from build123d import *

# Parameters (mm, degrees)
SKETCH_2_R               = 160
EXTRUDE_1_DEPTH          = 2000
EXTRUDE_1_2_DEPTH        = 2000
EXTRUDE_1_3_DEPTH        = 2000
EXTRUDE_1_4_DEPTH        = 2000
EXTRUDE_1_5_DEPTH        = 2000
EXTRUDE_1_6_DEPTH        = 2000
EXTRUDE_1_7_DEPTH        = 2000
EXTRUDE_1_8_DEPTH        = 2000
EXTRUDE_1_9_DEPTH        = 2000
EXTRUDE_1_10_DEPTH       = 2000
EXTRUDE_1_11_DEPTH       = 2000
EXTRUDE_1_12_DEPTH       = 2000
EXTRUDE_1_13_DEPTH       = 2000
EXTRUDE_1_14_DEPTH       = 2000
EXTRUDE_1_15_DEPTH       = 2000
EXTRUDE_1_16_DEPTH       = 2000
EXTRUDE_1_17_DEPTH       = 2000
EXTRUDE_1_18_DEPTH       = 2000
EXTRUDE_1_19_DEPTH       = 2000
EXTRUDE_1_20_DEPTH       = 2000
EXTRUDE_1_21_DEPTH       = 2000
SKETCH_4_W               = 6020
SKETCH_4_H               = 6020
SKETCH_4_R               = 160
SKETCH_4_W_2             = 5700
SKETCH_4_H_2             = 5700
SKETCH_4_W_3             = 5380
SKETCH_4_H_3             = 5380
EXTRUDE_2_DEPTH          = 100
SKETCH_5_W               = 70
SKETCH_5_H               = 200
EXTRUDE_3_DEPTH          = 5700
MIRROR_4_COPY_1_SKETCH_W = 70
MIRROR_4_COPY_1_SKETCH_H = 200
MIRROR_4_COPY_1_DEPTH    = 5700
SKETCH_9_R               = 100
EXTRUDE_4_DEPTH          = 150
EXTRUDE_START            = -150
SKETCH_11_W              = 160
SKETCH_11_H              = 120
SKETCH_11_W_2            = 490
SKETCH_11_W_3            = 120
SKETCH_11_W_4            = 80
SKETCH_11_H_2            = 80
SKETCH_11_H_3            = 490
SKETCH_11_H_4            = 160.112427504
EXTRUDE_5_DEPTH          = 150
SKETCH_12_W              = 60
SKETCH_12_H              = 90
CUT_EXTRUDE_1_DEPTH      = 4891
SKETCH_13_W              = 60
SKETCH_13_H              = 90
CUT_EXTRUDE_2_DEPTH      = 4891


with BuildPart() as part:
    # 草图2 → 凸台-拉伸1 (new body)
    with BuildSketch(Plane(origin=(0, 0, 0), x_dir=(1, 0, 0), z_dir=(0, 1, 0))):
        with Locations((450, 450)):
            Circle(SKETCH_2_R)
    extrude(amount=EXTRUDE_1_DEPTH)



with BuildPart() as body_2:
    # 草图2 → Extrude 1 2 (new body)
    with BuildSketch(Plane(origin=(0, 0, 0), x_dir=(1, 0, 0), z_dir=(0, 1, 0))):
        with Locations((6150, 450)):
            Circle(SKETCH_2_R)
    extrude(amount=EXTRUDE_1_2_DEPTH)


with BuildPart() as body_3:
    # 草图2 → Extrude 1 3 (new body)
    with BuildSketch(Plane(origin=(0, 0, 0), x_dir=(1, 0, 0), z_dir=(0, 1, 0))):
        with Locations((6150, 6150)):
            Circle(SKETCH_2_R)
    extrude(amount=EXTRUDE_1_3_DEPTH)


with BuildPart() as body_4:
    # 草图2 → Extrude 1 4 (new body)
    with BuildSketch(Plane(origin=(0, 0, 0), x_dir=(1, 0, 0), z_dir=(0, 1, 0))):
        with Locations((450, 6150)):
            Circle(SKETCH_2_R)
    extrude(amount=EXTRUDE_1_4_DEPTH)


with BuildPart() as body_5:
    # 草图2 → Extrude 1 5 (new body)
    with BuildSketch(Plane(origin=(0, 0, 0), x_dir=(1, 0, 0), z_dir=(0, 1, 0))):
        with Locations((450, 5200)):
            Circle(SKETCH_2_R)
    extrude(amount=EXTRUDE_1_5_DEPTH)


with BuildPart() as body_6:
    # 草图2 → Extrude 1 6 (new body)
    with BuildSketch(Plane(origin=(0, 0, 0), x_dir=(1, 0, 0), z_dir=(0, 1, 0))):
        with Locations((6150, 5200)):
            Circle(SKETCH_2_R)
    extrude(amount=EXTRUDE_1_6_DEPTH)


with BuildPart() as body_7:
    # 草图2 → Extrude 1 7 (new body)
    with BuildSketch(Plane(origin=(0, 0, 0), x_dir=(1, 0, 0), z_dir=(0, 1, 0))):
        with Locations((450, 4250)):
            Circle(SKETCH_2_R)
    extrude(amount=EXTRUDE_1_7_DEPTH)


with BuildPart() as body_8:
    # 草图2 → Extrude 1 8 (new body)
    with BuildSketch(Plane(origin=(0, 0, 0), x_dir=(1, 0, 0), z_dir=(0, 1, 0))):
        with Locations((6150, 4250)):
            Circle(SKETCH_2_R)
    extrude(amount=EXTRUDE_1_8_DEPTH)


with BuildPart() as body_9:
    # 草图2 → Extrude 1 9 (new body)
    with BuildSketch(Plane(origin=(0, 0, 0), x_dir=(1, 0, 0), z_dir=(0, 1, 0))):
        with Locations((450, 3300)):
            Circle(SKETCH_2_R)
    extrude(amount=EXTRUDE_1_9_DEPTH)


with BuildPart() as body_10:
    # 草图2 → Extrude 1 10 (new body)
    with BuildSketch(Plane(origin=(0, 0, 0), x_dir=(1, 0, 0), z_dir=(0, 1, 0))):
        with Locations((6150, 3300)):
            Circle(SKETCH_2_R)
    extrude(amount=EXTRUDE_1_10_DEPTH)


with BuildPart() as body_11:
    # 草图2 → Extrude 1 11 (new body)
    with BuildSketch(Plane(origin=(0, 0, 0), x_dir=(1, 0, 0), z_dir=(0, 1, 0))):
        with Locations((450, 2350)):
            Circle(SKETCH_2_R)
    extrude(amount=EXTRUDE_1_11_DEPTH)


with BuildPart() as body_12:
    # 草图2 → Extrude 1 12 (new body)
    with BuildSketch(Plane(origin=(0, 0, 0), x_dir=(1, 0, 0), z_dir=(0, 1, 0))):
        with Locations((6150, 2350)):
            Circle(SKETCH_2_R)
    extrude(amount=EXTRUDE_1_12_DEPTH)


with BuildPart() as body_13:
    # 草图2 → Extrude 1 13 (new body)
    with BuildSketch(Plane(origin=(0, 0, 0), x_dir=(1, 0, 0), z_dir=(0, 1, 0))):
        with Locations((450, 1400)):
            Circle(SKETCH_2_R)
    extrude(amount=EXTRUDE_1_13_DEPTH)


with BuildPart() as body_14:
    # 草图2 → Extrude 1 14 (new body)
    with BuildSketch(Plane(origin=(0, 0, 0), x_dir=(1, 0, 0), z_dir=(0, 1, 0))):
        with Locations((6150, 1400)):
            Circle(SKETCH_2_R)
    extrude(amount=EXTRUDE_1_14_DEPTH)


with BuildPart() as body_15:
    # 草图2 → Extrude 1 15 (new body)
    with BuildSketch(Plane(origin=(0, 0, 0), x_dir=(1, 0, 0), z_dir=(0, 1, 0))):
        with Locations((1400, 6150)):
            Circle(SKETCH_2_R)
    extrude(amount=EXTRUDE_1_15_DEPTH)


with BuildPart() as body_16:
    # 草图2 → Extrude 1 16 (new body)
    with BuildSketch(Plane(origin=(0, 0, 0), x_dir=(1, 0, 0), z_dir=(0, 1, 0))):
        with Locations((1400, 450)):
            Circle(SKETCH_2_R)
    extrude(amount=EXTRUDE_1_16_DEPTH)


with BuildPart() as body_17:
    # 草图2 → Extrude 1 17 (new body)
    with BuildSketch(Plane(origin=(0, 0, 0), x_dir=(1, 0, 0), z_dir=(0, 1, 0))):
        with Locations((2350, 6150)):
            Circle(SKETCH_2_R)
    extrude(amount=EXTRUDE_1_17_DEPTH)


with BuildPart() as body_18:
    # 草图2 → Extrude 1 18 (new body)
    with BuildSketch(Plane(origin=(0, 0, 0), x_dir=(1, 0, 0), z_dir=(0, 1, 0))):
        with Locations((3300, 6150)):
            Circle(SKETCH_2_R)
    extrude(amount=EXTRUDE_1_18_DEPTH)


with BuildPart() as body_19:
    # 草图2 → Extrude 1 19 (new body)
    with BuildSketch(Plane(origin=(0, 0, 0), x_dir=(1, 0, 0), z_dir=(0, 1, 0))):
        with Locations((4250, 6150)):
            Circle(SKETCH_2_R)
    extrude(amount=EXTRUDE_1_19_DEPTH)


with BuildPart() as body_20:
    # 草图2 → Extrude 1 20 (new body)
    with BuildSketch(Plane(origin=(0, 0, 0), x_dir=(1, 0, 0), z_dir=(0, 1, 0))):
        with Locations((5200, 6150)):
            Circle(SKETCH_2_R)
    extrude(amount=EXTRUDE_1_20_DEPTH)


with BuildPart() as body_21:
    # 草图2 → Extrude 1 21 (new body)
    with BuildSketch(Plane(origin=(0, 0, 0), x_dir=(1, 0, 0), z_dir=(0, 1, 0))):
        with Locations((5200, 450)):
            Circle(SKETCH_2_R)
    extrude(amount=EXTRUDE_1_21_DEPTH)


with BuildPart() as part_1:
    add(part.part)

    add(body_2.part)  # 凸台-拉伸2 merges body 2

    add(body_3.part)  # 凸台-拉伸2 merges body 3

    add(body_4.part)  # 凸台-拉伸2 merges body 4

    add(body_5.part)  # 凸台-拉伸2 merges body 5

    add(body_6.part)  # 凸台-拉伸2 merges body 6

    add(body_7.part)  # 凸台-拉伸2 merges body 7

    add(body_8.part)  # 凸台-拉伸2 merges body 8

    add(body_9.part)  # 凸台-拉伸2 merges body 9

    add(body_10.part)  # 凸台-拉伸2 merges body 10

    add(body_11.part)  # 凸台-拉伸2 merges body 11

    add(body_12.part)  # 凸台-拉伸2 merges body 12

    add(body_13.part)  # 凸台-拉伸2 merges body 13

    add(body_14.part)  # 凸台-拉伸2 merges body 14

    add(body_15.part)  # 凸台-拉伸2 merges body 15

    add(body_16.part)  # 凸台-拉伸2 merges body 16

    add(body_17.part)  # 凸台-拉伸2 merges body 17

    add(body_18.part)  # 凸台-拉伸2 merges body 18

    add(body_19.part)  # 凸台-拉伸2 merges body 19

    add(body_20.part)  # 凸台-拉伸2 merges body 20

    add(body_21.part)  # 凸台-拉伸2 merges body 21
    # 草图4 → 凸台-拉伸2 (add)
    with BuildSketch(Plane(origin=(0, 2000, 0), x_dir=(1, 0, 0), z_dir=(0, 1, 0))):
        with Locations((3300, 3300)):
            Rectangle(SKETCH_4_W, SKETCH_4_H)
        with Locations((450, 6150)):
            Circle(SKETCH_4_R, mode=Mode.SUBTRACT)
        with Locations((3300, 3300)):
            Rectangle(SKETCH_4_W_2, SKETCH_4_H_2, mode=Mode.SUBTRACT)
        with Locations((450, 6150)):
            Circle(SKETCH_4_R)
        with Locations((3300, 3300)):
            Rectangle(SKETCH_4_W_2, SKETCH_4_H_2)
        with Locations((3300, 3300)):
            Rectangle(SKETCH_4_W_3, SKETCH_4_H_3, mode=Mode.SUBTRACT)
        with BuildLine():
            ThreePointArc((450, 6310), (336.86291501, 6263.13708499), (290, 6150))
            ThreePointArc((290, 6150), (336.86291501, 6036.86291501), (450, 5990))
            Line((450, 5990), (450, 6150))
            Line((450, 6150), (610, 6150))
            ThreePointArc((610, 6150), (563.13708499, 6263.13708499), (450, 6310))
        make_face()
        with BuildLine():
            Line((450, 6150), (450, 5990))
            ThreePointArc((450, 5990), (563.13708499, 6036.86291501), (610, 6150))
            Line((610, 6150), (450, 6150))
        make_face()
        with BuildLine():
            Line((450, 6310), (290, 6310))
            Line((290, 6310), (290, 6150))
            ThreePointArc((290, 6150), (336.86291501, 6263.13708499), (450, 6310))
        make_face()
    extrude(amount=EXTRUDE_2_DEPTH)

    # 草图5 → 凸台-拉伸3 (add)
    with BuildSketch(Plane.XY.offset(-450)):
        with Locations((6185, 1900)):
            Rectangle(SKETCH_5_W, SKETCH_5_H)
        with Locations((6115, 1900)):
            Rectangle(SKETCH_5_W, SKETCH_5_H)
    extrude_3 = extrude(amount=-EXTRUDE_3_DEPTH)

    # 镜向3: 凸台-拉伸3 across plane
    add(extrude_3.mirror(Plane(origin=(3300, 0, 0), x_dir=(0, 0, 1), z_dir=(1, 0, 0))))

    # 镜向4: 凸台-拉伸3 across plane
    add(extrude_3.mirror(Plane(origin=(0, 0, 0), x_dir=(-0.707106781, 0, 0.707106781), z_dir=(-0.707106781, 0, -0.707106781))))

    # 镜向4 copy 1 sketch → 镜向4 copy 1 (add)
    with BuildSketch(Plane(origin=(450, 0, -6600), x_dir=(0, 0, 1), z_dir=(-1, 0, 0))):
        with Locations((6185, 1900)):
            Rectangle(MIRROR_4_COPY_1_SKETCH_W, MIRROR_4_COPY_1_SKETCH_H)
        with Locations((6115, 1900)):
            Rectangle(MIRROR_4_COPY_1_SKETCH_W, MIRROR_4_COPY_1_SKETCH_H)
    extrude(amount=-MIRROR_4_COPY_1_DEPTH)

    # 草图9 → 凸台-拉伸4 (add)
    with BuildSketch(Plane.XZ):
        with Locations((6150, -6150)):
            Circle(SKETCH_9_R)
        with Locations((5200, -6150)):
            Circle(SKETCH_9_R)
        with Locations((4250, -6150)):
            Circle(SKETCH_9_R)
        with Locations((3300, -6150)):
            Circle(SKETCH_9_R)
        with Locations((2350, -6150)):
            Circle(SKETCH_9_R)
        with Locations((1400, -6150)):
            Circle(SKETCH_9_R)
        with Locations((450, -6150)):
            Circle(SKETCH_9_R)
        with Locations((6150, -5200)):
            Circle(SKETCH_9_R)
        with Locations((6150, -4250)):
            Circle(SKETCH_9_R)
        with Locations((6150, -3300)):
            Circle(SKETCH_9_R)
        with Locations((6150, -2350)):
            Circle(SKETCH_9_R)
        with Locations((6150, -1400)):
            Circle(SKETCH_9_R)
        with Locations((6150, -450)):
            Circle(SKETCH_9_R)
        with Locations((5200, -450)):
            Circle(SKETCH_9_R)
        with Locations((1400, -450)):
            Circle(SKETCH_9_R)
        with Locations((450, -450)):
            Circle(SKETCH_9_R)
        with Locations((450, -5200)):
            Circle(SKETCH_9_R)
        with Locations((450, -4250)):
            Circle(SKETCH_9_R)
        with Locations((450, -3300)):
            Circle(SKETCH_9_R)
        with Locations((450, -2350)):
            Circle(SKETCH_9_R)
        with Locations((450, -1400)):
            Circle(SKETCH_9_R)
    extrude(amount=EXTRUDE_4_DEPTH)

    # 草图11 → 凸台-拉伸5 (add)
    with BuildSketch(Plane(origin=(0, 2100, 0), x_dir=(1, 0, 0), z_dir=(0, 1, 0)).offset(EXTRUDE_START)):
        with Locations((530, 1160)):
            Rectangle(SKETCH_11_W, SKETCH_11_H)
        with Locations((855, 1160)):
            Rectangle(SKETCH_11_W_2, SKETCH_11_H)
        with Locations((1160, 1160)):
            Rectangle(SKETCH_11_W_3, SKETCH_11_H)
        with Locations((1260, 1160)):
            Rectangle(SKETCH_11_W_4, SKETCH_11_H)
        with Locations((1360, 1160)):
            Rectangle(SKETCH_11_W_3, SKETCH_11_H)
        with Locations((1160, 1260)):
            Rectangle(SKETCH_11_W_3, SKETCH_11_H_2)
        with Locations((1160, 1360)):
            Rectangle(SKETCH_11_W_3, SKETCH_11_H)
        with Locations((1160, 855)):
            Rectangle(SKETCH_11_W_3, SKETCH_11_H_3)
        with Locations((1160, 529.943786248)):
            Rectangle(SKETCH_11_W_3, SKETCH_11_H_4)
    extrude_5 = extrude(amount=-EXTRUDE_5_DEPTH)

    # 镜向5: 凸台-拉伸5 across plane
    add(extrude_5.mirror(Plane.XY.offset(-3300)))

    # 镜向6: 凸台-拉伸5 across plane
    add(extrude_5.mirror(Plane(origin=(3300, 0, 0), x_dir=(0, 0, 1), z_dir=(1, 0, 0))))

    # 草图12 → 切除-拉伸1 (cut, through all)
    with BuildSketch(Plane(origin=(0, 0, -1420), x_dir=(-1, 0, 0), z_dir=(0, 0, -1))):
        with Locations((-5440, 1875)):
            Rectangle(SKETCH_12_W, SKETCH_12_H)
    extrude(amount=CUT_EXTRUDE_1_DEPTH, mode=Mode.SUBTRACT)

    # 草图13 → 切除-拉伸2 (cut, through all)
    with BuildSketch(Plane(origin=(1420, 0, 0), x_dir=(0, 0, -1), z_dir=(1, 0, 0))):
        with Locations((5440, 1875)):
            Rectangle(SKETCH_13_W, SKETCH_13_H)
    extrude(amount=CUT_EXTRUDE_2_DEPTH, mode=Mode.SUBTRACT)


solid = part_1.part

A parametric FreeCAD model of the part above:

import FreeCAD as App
import Part
import Sketcher
from FreeCAD import Vector
Q = App.Units.Quantity


def add_polygon(sketch, points):
    """Adds a closed chain of lines whose ends are joined by coincident constraints."""
    first, n = sketch.GeometryCount, len(points)
    for a, b in zip(points, points[1:] + points[:1]):
        sketch.addGeometry(Part.LineSegment(App.Vector(*a, 0), App.Vector(*b, 0)), False)
    for i in range(n):
        sketch.addConstraint(Sketcher.Constraint("Coincident", first + i, 2, first + (i + 1) % n, 1))

doc = App.newDocument("Part")
body = doc.addObject("PartDesign::Body", "Body")

# Sketch on XZ plane
sketch1 = body.newObject("Sketcher::SketchObject", "Sketch")
sketch1.AttachmentSupport = (doc.getObject("XZ_Plane"), [""])
sketch1.MapMode = "FlatFace"
sketch1.addGeometry(Part.Circle(Vector(450, -450, 0), Vector(0, 0, 1), 160), False)
sketch1.addConstraint(Sketcher.Constraint("Diameter", 0, Q("320 mm")))
sketch1.addConstraint(Sketcher.Constraint("DistanceX", -1, 1, 0, 3, Q("450 mm")))
sketch1.addConstraint(Sketcher.Constraint("DistanceY", 0, 3, -1, 1, Q("450 mm")))
pad1 = body.newObject("PartDesign::Pad", "Pad")
pad1.Profile = sketch1
pad1.Length = 2000
pad1.Reversed = True
body2 = doc.addObject("PartDesign::Body", "Body001")

# Sketch on XZ plane
sketch2 = body2.newObject("Sketcher::SketchObject", "Sketch001")
sketch2.AttachmentSupport = (doc.getObject("XZ_Plane001"), [""])
sketch2.MapMode = "FlatFace"
sketch2.addGeometry(Part.Circle(Vector(6150, -450, 0), Vector(0, 0, 1), 160), False)
sketch2.addConstraint(Sketcher.Constraint("Diameter", 0, Q("320 mm")))
sketch2.addConstraint(Sketcher.Constraint("DistanceX", -1, 1, 0, 3, Q("6150 mm")))
sketch2.addConstraint(Sketcher.Constraint("DistanceY", 0, 3, -1, 1, Q("450 mm")))
pad2 = body2.newObject("PartDesign::Pad", "Pad001")
pad2.Profile = sketch2
pad2.Length = 2000
pad2.Reversed = True
body3 = doc.addObject("PartDesign::Body", "Body002")

# Sketch on XZ plane
sketch3 = body3.newObject("Sketcher::SketchObject", "Sketch002")
sketch3.AttachmentSupport = (doc.getObject("XZ_Plane002"), [""])
sketch3.MapMode = "FlatFace"
sketch3.addGeometry(Part.Circle(Vector(6150, -6150, 0), Vector(0, 0, 1), 160), False)
sketch3.addConstraint(Sketcher.Constraint("Diameter", 0, Q("320 mm")))
sketch3.addConstraint(Sketcher.Constraint("DistanceX", -1, 1, 0, 3, Q("6150 mm")))
sketch3.addConstraint(Sketcher.Constraint("DistanceY", 0, 3, -1, 1, Q("6150 mm")))
pad3 = body3.newObject("PartDesign::Pad", "Pad002")
pad3.Profile = sketch3
pad3.Length = 2000
pad3.Reversed = True
body4 = doc.addObject("PartDesign::Body", "Body003")

# Sketch on XZ plane
sketch4 = body4.newObject("Sketcher::SketchObject", "Sketch003")
sketch4.AttachmentSupport = (doc.getObject("XZ_Plane003"), [""])
sketch4.MapMode = "FlatFace"
sketch4.addGeometry(Part.Circle(Vector(450, -6150, 0), Vector(0, 0, 1), 160), False)
sketch4.addConstraint(Sketcher.Constraint("Diameter", 0, Q("320 mm")))
sketch4.addConstraint(Sketcher.Constraint("DistanceX", -1, 1, 0, 3, Q("450 mm")))
sketch4.addConstraint(Sketcher.Constraint("DistanceY", 0, 3, -1, 1, Q("6150 mm")))
pad4 = body4.newObject("PartDesign::Pad", "Pad003")
pad4.Profile = sketch4
pad4.Length = 2000
pad4.Reversed = True
body5 = doc.addObject("PartDesign::Body", "Body004")

# Sketch on XZ plane
sketch5 = body5.newObject("Sketcher::SketchObject", "Sketch004")
sketch5.AttachmentSupport = (doc.getObject("XZ_Plane004"), [""])
sketch5.MapMode = "FlatFace"
sketch5.addGeometry(Part.Circle(Vector(450, -5200, 0), Vector(0, 0, 1), 160), False)
sketch5.addConstraint(Sketcher.Constraint("Diameter", 0, Q("320 mm")))
sketch5.addConstraint(Sketcher.Constraint("DistanceX", -1, 1, 0, 3, Q("450 mm")))
sketch5.addConstraint(Sketcher.Constraint("DistanceY", 0, 3, -1, 1, Q("5200 mm")))
pad5 = body5.newObject("PartDesign::Pad", "Pad004")
pad5.Profile = sketch5
pad5.Length = 2000
pad5.Reversed = True
body6 = doc.addObject("PartDesign::Body", "Body005")

# Sketch on XZ plane
sketch6 = body6.newObject("Sketcher::SketchObject", "Sketch005")
sketch6.AttachmentSupport = (doc.getObject("XZ_Plane005"), [""])
sketch6.MapMode = "FlatFace"
sketch6.addGeometry(Part.Circle(Vector(6150, -5200, 0), Vector(0, 0, 1), 160), False)
sketch6.addConstraint(Sketcher.Constraint("Diameter", 0, Q("320 mm")))
sketch6.addConstraint(Sketcher.Constraint("DistanceX", -1, 1, 0, 3, Q("6150 mm")))
sketch6.addConstraint(Sketcher.Constraint("DistanceY", 0, 3, -1, 1, Q("5200 mm")))
pad6 = body6.newObject("PartDesign::Pad", "Pad005")
pad6.Profile = sketch6
pad6.Length = 2000
pad6.Reversed = True
body7 = doc.addObject("PartDesign::Body", "Body006")

# Sketch on XZ plane
sketch7 = body7.newObject("Sketcher::SketchObject", "Sketch006")
sketch7.AttachmentSupport = (doc.getObject("XZ_Plane006"), [""])
sketch7.MapMode = "FlatFace"
sketch7.addGeometry(Part.Circle(Vector(450, -4250, 0), Vector(0, 0, 1), 160), False)
sketch7.addConstraint(Sketcher.Constraint("Diameter", 0, Q("320 mm")))
sketch7.addConstraint(Sketcher.Constraint("DistanceX", -1, 1, 0, 3, Q("450 mm")))
sketch7.addConstraint(Sketcher.Constraint("DistanceY", 0, 3, -1, 1, Q("4250 mm")))
pad7 = body7.newObject("PartDesign::Pad", "Pad006")
pad7.Profile = sketch7
pad7.Length = 2000
pad7.Reversed = True
body8 = doc.addObject("PartDesign::Body", "Body007")

# Sketch on XZ plane
sketch8 = body8.newObject("Sketcher::SketchObject", "Sketch007")
sketch8.AttachmentSupport = (doc.getObject("XZ_Plane007"), [""])
sketch8.MapMode = "FlatFace"
sketch8.addGeometry(Part.Circle(Vector(6150, -4250, 0), Vector(0, 0, 1), 160), False)
sketch8.addConstraint(Sketcher.Constraint("Diameter", 0, Q("320 mm")))
sketch8.addConstraint(Sketcher.Constraint("DistanceX", -1, 1, 0, 3, Q("6150 mm")))
sketch8.addConstraint(Sketcher.Constraint("DistanceY", 0, 3, -1, 1, Q("4250 mm")))
pad8 = body8.newObject("PartDesign::Pad", "Pad007")
pad8.Profile = sketch8
pad8.Length = 2000
pad8.Reversed = True
body9 = doc.addObject("PartDesign::Body", "Body008")

# Sketch on XZ plane
sketch9 = body9.newObject("Sketcher::SketchObject", "Sketch008")
sketch9.AttachmentSupport = (doc.getObject("XZ_Plane008"), [""])
sketch9.MapMode = "FlatFace"
sketch9.addGeometry(Part.Circle(Vector(450, -3300, 0), Vector(0, 0, 1), 160), False)
sketch9.addConstraint(Sketcher.Constraint("Diameter", 0, Q("320 mm")))
sketch9.addConstraint(Sketcher.Constraint("DistanceX", -1, 1, 0, 3, Q("450 mm")))
sketch9.addConstraint(Sketcher.Constraint("DistanceY", 0, 3, -1, 1, Q("3300 mm")))
pad9 = body9.newObject("PartDesign::Pad", "Pad008")
pad9.Profile = sketch9
pad9.Length = 2000
pad9.Reversed = True
body10 = doc.addObject("PartDesign::Body", "Body009")

# Sketch on XZ plane
sketch10 = body10.newObject("Sketcher::SketchObject", "Sketch009")
sketch10.AttachmentSupport = (doc.getObject("XZ_Plane009"), [""])
sketch10.MapMode = "FlatFace"
sketch10.addGeometry(Part.Circle(Vector(6150, -3300, 0), Vector(0, 0, 1), 160), False)
sketch10.addConstraint(Sketcher.Constraint("Diameter", 0, Q("320 mm")))
sketch10.addConstraint(Sketcher.Constraint("DistanceX", -1, 1, 0, 3, Q("6150 mm")))
sketch10.addConstraint(Sketcher.Constraint("DistanceY", 0, 3, -1, 1, Q("3300 mm")))
pad10 = body10.newObject("PartDesign::Pad", "Pad009")
pad10.Profile = sketch10
pad10.Length = 2000
pad10.Reversed = True
body11 = doc.addObject("PartDesign::Body", "Body010")

# Sketch on XZ plane
sketch11 = body11.newObject("Sketcher::SketchObject", "Sketch010")
sketch11.AttachmentSupport = (doc.getObject("XZ_Plane010"), [""])
sketch11.MapMode = "FlatFace"
sketch11.addGeometry(Part.Circle(Vector(450, -2350, 0), Vector(0, 0, 1), 160), False)
sketch11.addConstraint(Sketcher.Constraint("Diameter", 0, Q("320 mm")))
sketch11.addConstraint(Sketcher.Constraint("DistanceX", -1, 1, 0, 3, Q("450 mm")))
sketch11.addConstraint(Sketcher.Constraint("DistanceY", 0, 3, -1, 1, Q("2350 mm")))
pad11 = body11.newObject("PartDesign::Pad", "Pad010")
pad11.Profile = sketch11
pad11.Length = 2000
pad11.Reversed = True
body12 = doc.addObject("PartDesign::Body", "Body011")

# Sketch on XZ plane
sketch12 = body12.newObject("Sketcher::SketchObject", "Sketch011")
sketch12.AttachmentSupport = (doc.getObject("XZ_Plane011"), [""])
sketch12.MapMode = "FlatFace"
sketch12.addGeometry(Part.Circle(Vector(6150, -2350, 0), Vector(0, 0, 1), 160), False)
sketch12.addConstraint(Sketcher.Constraint("Diameter", 0, Q("320 mm")))
sketch12.addConstraint(Sketcher.Constraint("DistanceX", -1, 1, 0, 3, Q("6150 mm")))
sketch12.addConstraint(Sketcher.Constraint("DistanceY", 0, 3, -1, 1, Q("2350 mm")))
pad12 = body12.newObject("PartDesign::Pad", "Pad011")
pad12.Profile = sketch12
pad12.Length = 2000
pad12.Reversed = True
body13 = doc.addObject("PartDesign::Body", "Body012")

# Sketch on XZ plane
sketch13 = body13.newObject("Sketcher::SketchObject", "Sketch012")
sketch13.AttachmentSupport = (doc.getObject("XZ_Plane012"), [""])
sketch13.MapMode = "FlatFace"
sketch13.addGeometry(Part.Circle(Vector(450, -1400, 0), Vector(0, 0, 1), 160), False)
sketch13.addConstraint(Sketcher.Constraint("Diameter", 0, Q("320 mm")))
sketch13.addConstraint(Sketcher.Constraint("DistanceX", -1, 1, 0, 3, Q("450 mm")))
sketch13.addConstraint(Sketcher.Constraint("DistanceY", 0, 3, -1, 1, Q("1400 mm")))
pad13 = body13.newObject("PartDesign::Pad", "Pad012")
pad13.Profile = sketch13
pad13.Length = 2000
pad13.Reversed = True
body14 = doc.addObject("PartDesign::Body", "Body013")

# Sketch on XZ plane
sketch14 = body14.newObject("Sketcher::SketchObject", "Sketch013")
sketch14.AttachmentSupport = (doc.getObject("XZ_Plane013"), [""])
sketch14.MapMode = "FlatFace"
sketch14.addGeometry(Part.Circle(Vector(6150, -1400, 0), Vector(0, 0, 1), 160), False)
sketch14.addConstraint(Sketcher.Constraint("Diameter", 0, Q("320 mm")))
sketch14.addConstraint(Sketcher.Constraint("DistanceX", -1, 1, 0, 3, Q("6150 mm")))
sketch14.addConstraint(Sketcher.Constraint("DistanceY", 0, 3, -1, 1, Q("1400 mm")))
pad14 = body14.newObject("PartDesign::Pad", "Pad013")
pad14.Profile = sketch14
pad14.Length = 2000
pad14.Reversed = True
body15 = doc.addObject("PartDesign::Body", "Body014")

# Sketch on XZ plane
sketch15 = body15.newObject("Sketcher::SketchObject", "Sketch014")
sketch15.AttachmentSupport = (doc.getObject("XZ_Plane014"), [""])
sketch15.MapMode = "FlatFace"
sketch15.addGeometry(Part.Circle(Vector(1400, -6150, 0), Vector(0, 0, 1), 160), False)
sketch15.addConstraint(Sketcher.Constraint("Diameter", 0, Q("320 mm")))
sketch15.addConstraint(Sketcher.Constraint("DistanceX", -1, 1, 0, 3, Q("1400 mm")))
sketch15.addConstraint(Sketcher.Constraint("DistanceY", 0, 3, -1, 1, Q("6150 mm")))
pad15 = body15.newObject("PartDesign::Pad", "Pad014")
pad15.Profile = sketch15
pad15.Length = 2000
pad15.Reversed = True
body16 = doc.addObject("PartDesign::Body", "Body015")

# Sketch on XZ plane
sketch16 = body16.newObject("Sketcher::SketchObject", "Sketch015")
sketch16.AttachmentSupport = (doc.getObject("XZ_Plane015"), [""])
sketch16.MapMode = "FlatFace"
sketch16.addGeometry(Part.Circle(Vector(1400, -450, 0), Vector(0, 0, 1), 160), False)
sketch16.addConstraint(Sketcher.Constraint("Diameter", 0, Q("320 mm")))
sketch16.addConstraint(Sketcher.Constraint("DistanceX", -1, 1, 0, 3, Q("1400 mm")))
sketch16.addConstraint(Sketcher.Constraint("DistanceY", 0, 3, -1, 1, Q("450 mm")))
pad16 = body16.newObject("PartDesign::Pad", "Pad015")
pad16.Profile = sketch16
pad16.Length = 2000
pad16.Reversed = True
body17 = doc.addObject("PartDesign::Body", "Body016")

# Sketch on XZ plane
sketch17 = body17.newObject("Sketcher::SketchObject", "Sketch016")
sketch17.AttachmentSupport = (doc.getObject("XZ_Plane016"), [""])
sketch17.MapMode = "FlatFace"
sketch17.addGeometry(Part.Circle(Vector(2350, -6150, 0), Vector(0, 0, 1), 160), False)
sketch17.addConstraint(Sketcher.Constraint("Diameter", 0, Q("320 mm")))
sketch17.addConstraint(Sketcher.Constraint("DistanceX", -1, 1, 0, 3, Q("2350 mm")))
sketch17.addConstraint(Sketcher.Constraint("DistanceY", 0, 3, -1, 1, Q("6150 mm")))
pad17 = body17.newObject("PartDesign::Pad", "Pad016")
pad17.Profile = sketch17
pad17.Length = 2000
pad17.Reversed = True
body18 = doc.addObject("PartDesign::Body", "Body017")

# Sketch on XZ plane
sketch18 = body18.newObject("Sketcher::SketchObject", "Sketch017")
sketch18.AttachmentSupport = (doc.getObject("XZ_Plane017"), [""])
sketch18.MapMode = "FlatFace"
sketch18.addGeometry(Part.Circle(Vector(3300, -6150, 0), Vector(0, 0, 1), 160), False)
sketch18.addConstraint(Sketcher.Constraint("Diameter", 0, Q("320 mm")))
sketch18.addConstraint(Sketcher.Constraint("DistanceX", -1, 1, 0, 3, Q("3300 mm")))
sketch18.addConstraint(Sketcher.Constraint("DistanceY", 0, 3, -1, 1, Q("6150 mm")))
pad18 = body18.newObject("PartDesign::Pad", "Pad017")
pad18.Profile = sketch18
pad18.Length = 2000
pad18.Reversed = True
body19 = doc.addObject("PartDesign::Body", "Body018")

# Sketch on XZ plane
sketch19 = body19.newObject("Sketcher::SketchObject", "Sketch018")
sketch19.AttachmentSupport = (doc.getObject("XZ_Plane018"), [""])
sketch19.MapMode = "FlatFace"
sketch19.addGeometry(Part.Circle(Vector(4250, -6150, 0), Vector(0, 0, 1), 160), False)
sketch19.addConstraint(Sketcher.Constraint("Diameter", 0, Q("320 mm")))
sketch19.addConstraint(Sketcher.Constraint("DistanceX", -1, 1, 0, 3, Q("4250 mm")))
sketch19.addConstraint(Sketcher.Constraint("DistanceY", 0, 3, -1, 1, Q("6150 mm")))
pad19 = body19.newObject("PartDesign::Pad", "Pad018")
pad19.Profile = sketch19
pad19.Length = 2000
pad19.Reversed = True
body20 = doc.addObject("PartDesign::Body", "Body019")

# Sketch on XZ plane
sketch20 = body20.newObject("Sketcher::SketchObject", "Sketch019")
sketch20.AttachmentSupport = (doc.getObject("XZ_Plane019"), [""])
sketch20.MapMode = "FlatFace"
sketch20.addGeometry(Part.Circle(Vector(5200, -6150, 0), Vector(0, 0, 1), 160), False)
sketch20.addConstraint(Sketcher.Constraint("Diameter", 0, Q("320 mm")))
sketch20.addConstraint(Sketcher.Constraint("DistanceX", -1, 1, 0, 3, Q("5200 mm")))
sketch20.addConstraint(Sketcher.Constraint("DistanceY", 0, 3, -1, 1, Q("6150 mm")))
pad20 = body20.newObject("PartDesign::Pad", "Pad019")
pad20.Profile = sketch20
pad20.Length = 2000
pad20.Reversed = True
body21 = doc.addObject("PartDesign::Body", "Body020")

# Sketch on XZ plane
sketch21 = body21.newObject("Sketcher::SketchObject", "Sketch020")
sketch21.AttachmentSupport = (doc.getObject("XZ_Plane020"), [""])
sketch21.MapMode = "FlatFace"
sketch21.addGeometry(Part.Circle(Vector(5200, -450, 0), Vector(0, 0, 1), 160), False)
sketch21.addConstraint(Sketcher.Constraint("Diameter", 0, Q("320 mm")))
sketch21.addConstraint(Sketcher.Constraint("DistanceX", -1, 1, 0, 3, Q("5200 mm")))
sketch21.addConstraint(Sketcher.Constraint("DistanceY", 0, 3, -1, 1, Q("450 mm")))
pad21 = body21.newObject("PartDesign::Pad", "Pad020")
pad21.Profile = sketch21
pad21.Length = 2000
pad21.Reversed = True
body.AllowCompound = True
doc.recompute()

boolean = body.newObject("PartDesign::Boolean", "Boolean")
boolean.Type = "Fuse"
boolean.addObjects([body2])
doc.recompute()

boolean2 = body.newObject("PartDesign::Boolean", "Boolean001")
boolean2.Type = "Fuse"
boolean2.addObjects([body3])
doc.recompute()

boolean3 = body.newObject("PartDesign::Boolean", "Boolean002")
boolean3.Type = "Fuse"
boolean3.addObjects([body4])
doc.recompute()

boolean4 = body.newObject("PartDesign::Boolean", "Boolean003")
boolean4.Type = "Fuse"
boolean4.addObjects([body5])
doc.recompute()

boolean5 = body.newObject("PartDesign::Boolean", "Boolean004")
boolean5.Type = "Fuse"
boolean5.addObjects([body6])
doc.recompute()

boolean6 = body.newObject("PartDesign::Boolean", "Boolean005")
boolean6.Type = "Fuse"
boolean6.addObjects([body7])
doc.recompute()

boolean7 = body.newObject("PartDesign::Boolean", "Boolean006")
boolean7.Type = "Fuse"
boolean7.addObjects([body8])
doc.recompute()

boolean8 = body.newObject("PartDesign::Boolean", "Boolean007")
boolean8.Type = "Fuse"
boolean8.addObjects([body9])
doc.recompute()

boolean9 = body.newObject("PartDesign::Boolean", "Boolean008")
boolean9.Type = "Fuse"
boolean9.addObjects([body10])
doc.recompute()

boolean10 = body.newObject("PartDesign::Boolean", "Boolean009")
boolean10.Type = "Fuse"
boolean10.addObjects([body11])
doc.recompute()

boolean11 = body.newObject("PartDesign::Boolean", "Boolean010")
boolean11.Type = "Fuse"
boolean11.addObjects([body12])
doc.recompute()

boolean12 = body.newObject("PartDesign::Boolean", "Boolean011")
boolean12.Type = "Fuse"
boolean12.addObjects([body13])
doc.recompute()

boolean13 = body.newObject("PartDesign::Boolean", "Boolean012")
boolean13.Type = "Fuse"
boolean13.addObjects([body14])
doc.recompute()

boolean14 = body.newObject("PartDesign::Boolean", "Boolean013")
boolean14.Type = "Fuse"
boolean14.addObjects([body15])
doc.recompute()

boolean15 = body.newObject("PartDesign::Boolean", "Boolean014")
boolean15.Type = "Fuse"
boolean15.addObjects([body16])
doc.recompute()

boolean16 = body.newObject("PartDesign::Boolean", "Boolean015")
boolean16.Type = "Fuse"
boolean16.addObjects([body17])
doc.recompute()

boolean17 = body.newObject("PartDesign::Boolean", "Boolean016")
boolean17.Type = "Fuse"
boolean17.addObjects([body18])
doc.recompute()

boolean18 = body.newObject("PartDesign::Boolean", "Boolean017")
boolean18.Type = "Fuse"
boolean18.addObjects([body19])
doc.recompute()

boolean19 = body.newObject("PartDesign::Boolean", "Boolean018")
boolean19.Type = "Fuse"
boolean19.addObjects([body20])
doc.recompute()

boolean20 = body.newObject("PartDesign::Boolean", "Boolean019")
boolean20.Type = "Fuse"
boolean20.addObjects([body21])

# Sketch on XZ plane
sketch22 = body.newObject("Sketcher::SketchObject", "Sketch021")
sketch22.AttachmentSupport = (doc.getObject("XZ_Plane"), [""])
sketch22.MapMode = "FlatFace"
sketch22.AttachmentOffset = App.Placement(Vector(0, 0, -2000), App.Rotation())
add_polygon(sketch22, [(290, -290), (6310, -290), (6310, -6310), (290, -6310)])  # lines 0-3
add_polygon(sketch22, [(5990, -610), (610, -610), (610, -5990), (5990, -5990)])  # lines 4-7
sketch22.addConstraint(Sketcher.Constraint("Horizontal", 0))
sketch22.addConstraint(Sketcher.Constraint("Vertical", 1))
sketch22.addConstraint(Sketcher.Constraint("Horizontal", 2))
sketch22.addConstraint(Sketcher.Constraint("Vertical", 3))
sketch22.addConstraint(Sketcher.Constraint("Horizontal", 4))
sketch22.addConstraint(Sketcher.Constraint("Vertical", 5))
sketch22.addConstraint(Sketcher.Constraint("Horizontal", 6))
sketch22.addConstraint(Sketcher.Constraint("Vertical", 7))
sketch22.addConstraint(Sketcher.Constraint("Equal", 2, 1))
sketch22.addConstraint(Sketcher.Constraint("Equal", 6, 5))
sketch22.addConstraint(Sketcher.Constraint("DistanceX", 0, 1, 0, 2, Q("6020 mm")))
sketch22.addConstraint(Sketcher.Constraint("DistanceX", 4, 2, 4, 1, Q("5380 mm")))
sketch22.addConstraint(Sketcher.Constraint("DistanceX", -1, 1, 0, 2, Q("6310 mm")))
sketch22.addConstraint(Sketcher.Constraint("DistanceY", 0, 2, -1, 1, Q("290 mm")))
sketch22.addConstraint(Sketcher.Constraint("DistanceX", -1, 1, 4, 2, Q("610 mm")))
sketch22.addConstraint(Sketcher.Constraint("DistanceY", 4, 2, -1, 1, Q("610 mm")))
pad22 = body.newObject("PartDesign::Pad", "Pad021")
pad22.Profile = sketch22
pad22.Length = 100
pad22.Reversed = True

# Sketch on XY plane
sketch23 = body.newObject("Sketcher::SketchObject", "Sketch022")
sketch23.AttachmentSupport = (doc.getObject("XY_Plane"), [""])
sketch23.MapMode = "FlatFace"
sketch23.AttachmentOffset = App.Placement(Vector(0, 0, -450), App.Rotation())
add_polygon(sketch23, [(6220, 1800), (6220, 2000), (6080, 2000), (6080, 1800)])  # lines 0-3
sketch23.addConstraint(Sketcher.Constraint("Vertical", 0))
sketch23.addConstraint(Sketcher.Constraint("Horizontal", 1))
sketch23.addConstraint(Sketcher.Constraint("Vertical", 2))
sketch23.addConstraint(Sketcher.Constraint("Horizontal", 3))
sketch23.addConstraint(Sketcher.Constraint("DistanceX", 1, 2, 1, 1, Q("140 mm")))
sketch23.addConstraint(Sketcher.Constraint("DistanceY", 0, 1, 0, 2, Q("200 mm")))
sketch23.addConstraint(Sketcher.Constraint("DistanceX", -1, 1, 0, 2, Q("6220 mm")))
sketch23.addConstraint(Sketcher.Constraint("DistanceY", -1, 1, 0, 2, Q("2000 mm")))
pad23 = body.newObject("PartDesign::Pad", "Pad022")
pad23.Profile = sketch23
pad23.Length = 5700
pad23.Reversed = True
doc.recompute()

datumplane = body.newObject("PartDesign::Plane", "DatumPlane")
datumplane.AttachmentSupport = (doc.getObject("YZ_Plane"), [""])
datumplane.MapMode = "FlatFace"
datumplane.AttachmentOffset = App.Placement(Vector(0, 0, 3300), App.Rotation())
mirrored = body.newObject("PartDesign::Mirrored", "Mirrored")
mirrored.Originals = [pad23]
mirrored.MirrorPlane = (datumplane, [""])
body.Tip = mirrored
doc.recompute()

datumplane2 = body.newObject("PartDesign::Plane", "DatumPlane001")
datumplane2.Placement = App.Placement(Vector(0, 0, 0), App.Rotation(Vector(0.707106781, 0, -0.707106781), Vector(0, -1, 0), Vector(-0.707106781, 0, -0.707106781), "ZXY"))
mirrored2 = body.newObject("PartDesign::Mirrored", "Mirrored001")
mirrored2.Originals = [pad23]
mirrored2.MirrorPlane = (datumplane2, [""])
body.Tip = mirrored2

# Sketch on YZ plane
sketch24 = body.newObject("Sketcher::SketchObject", "Sketch023")
sketch24.AttachmentSupport = (doc.getObject("YZ_Plane"), [""])
sketch24.MapMode = "FlatFace"
sketch24.AttachmentOffset = App.Placement(Vector(0, 0, 450), App.Rotation())
add_polygon(sketch24, [(1800, -380), (2000, -380), (2000, -520), (1800, -520)])  # lines 0-3
sketch24.addConstraint(Sketcher.Constraint("Horizontal", 0))
sketch24.addConstraint(Sketcher.Constraint("Vertical", 1))
sketch24.addConstraint(Sketcher.Constraint("Horizontal", 2))
sketch24.addConstraint(Sketcher.Constraint("Vertical", 3))
sketch24.addConstraint(Sketcher.Constraint("DistanceX", 0, 1, 0, 2, Q("200 mm")))
sketch24.addConstraint(Sketcher.Constraint("DistanceY", 1, 2, 1, 1, Q("140 mm")))
sketch24.addConstraint(Sketcher.Constraint("DistanceX", -1, 1, 0, 2, Q("2000 mm")))
sketch24.addConstraint(Sketcher.Constraint("DistanceY", 0, 2, -1, 1, Q("380 mm")))
pad24 = body.newObject("PartDesign::Pad", "Pad023")
pad24.Profile = sketch24
pad24.Length = 5700

# Sketch on XZ plane
sketch25 = body.newObject("Sketcher::SketchObject", "Sketch024")
sketch25.AttachmentSupport = (doc.getObject("XZ_Plane"), [""])
sketch25.MapMode = "FlatFace"
sketch25.addGeometry(Part.Circle(Vector(6150, -6150, 0), Vector(0, 0, 1), 100), False)
sketch25.addGeometry(Part.Circle(Vector(5200, -6150, 0), Vector(0, 0, 1), 100), False)
sketch25.addGeometry(Part.Circle(Vector(4250, -6150, 0), Vector(0, 0, 1), 100), False)
sketch25.addGeometry(Part.Circle(Vector(3300, -6150, 0), Vector(0, 0, 1), 100), False)
sketch25.addGeometry(Part.Circle(Vector(2350, -6150, 0), Vector(0, 0, 1), 100), False)
sketch25.addGeometry(Part.Circle(Vector(1400, -6150, 0), Vector(0, 0, 1), 100), False)
sketch25.addGeometry(Part.Circle(Vector(450, -6150, 0), Vector(0, 0, 1), 100), False)
sketch25.addGeometry(Part.Circle(Vector(6150, -5200, 0), Vector(0, 0, 1), 100), False)
sketch25.addGeometry(Part.Circle(Vector(6150, -4250, 0), Vector(0, 0, 1), 100), False)
sketch25.addGeometry(Part.Circle(Vector(6150, -3300, 0), Vector(0, 0, 1), 100), False)
sketch25.addGeometry(Part.Circle(Vector(6150, -2350, 0), Vector(0, 0, 1), 100), False)
sketch25.addGeometry(Part.Circle(Vector(6150, -1400, 0), Vector(0, 0, 1), 100), False)
sketch25.addGeometry(Part.Circle(Vector(6150, -450, 0), Vector(0, 0, 1), 100), False)
sketch25.addGeometry(Part.Circle(Vector(5200, -450, 0), Vector(0, 0, 1), 100), False)
sketch25.addGeometry(Part.Circle(Vector(1400, -450, 0), Vector(0, 0, 1), 100), False)
sketch25.addGeometry(Part.Circle(Vector(450, -450, 0), Vector(0, 0, 1), 100), False)
sketch25.addGeometry(Part.Circle(Vector(450, -5200, 0), Vector(0, 0, 1), 100), False)
sketch25.addGeometry(Part.Circle(Vector(450, -4250, 0), Vector(0, 0, 1), 100), False)
sketch25.addGeometry(Part.Circle(Vector(450, -3300, 0), Vector(0, 0, 1), 100), False)
sketch25.addGeometry(Part.Circle(Vector(450, -2350, 0), Vector(0, 0, 1), 100), False)
sketch25.addGeometry(Part.Circle(Vector(450, -1400, 0), Vector(0, 0, 1), 100), False)
sketch25.addConstraint(Sketcher.Constraint("Equal", 0, 1))
sketch25.addConstraint(Sketcher.Constraint("Equal", 1, 2))
sketch25.addConstraint(Sketcher.Constraint("Equal", 2, 3))
sketch25.addConstraint(Sketcher.Constraint("Equal", 3, 4))
sketch25.addConstraint(Sketcher.Constraint("Equal", 4, 5))
sketch25.addConstraint(Sketcher.Constraint("Equal", 5, 6))
sketch25.addConstraint(Sketcher.Constraint("Equal", 6, 7))
sketch25.addConstraint(Sketcher.Constraint("Equal", 7, 8))
sketch25.addConstraint(Sketcher.Constraint("Equal", 8, 9))
sketch25.addConstraint(Sketcher.Constraint("Equal", 9, 10))
sketch25.addConstraint(Sketcher.Constraint("Equal", 10, 11))
sketch25.addConstraint(Sketcher.Constraint("Equal", 11, 12))
sketch25.addConstraint(Sketcher.Constraint("Equal", 12, 13))
sketch25.addConstraint(Sketcher.Constraint("Equal", 13, 14))
sketch25.addConstraint(Sketcher.Constraint("Equal", 14, 15))
sketch25.addConstraint(Sketcher.Constraint("Equal", 15, 16))
sketch25.addConstraint(Sketcher.Constraint("Equal", 16, 17))
sketch25.addConstraint(Sketcher.Constraint("Equal", 17, 18))
sketch25.addConstraint(Sketcher.Constraint("Equal", 18, 19))
sketch25.addConstraint(Sketcher.Constraint("Equal", 19, 20))
sketch25.addConstraint(Sketcher.Constraint("Horizontal", 0, 3, 1, 3))
sketch25.addConstraint(Sketcher.Constraint("Horizontal", 1, 3, 2, 3))
sketch25.addConstraint(Sketcher.Constraint("Horizontal", 2, 3, 3, 3))
sketch25.addConstraint(Sketcher.Constraint("Horizontal", 3, 3, 4, 3))
sketch25.addConstraint(Sketcher.Constraint("Horizontal", 4, 3, 5, 3))
sketch25.addConstraint(Sketcher.Constraint("Horizontal", 5, 3, 6, 3))
sketch25.addConstraint(Sketcher.Constraint("Horizontal", 12, 3, 13, 3))
sketch25.addConstraint(Sketcher.Constraint("Horizontal", 13, 3, 14, 3))
sketch25.addConstraint(Sketcher.Constraint("Horizontal", 14, 3, 15, 3))
sketch25.addConstraint(Sketcher.Constraint("Horizontal", 7, 3, 16, 3))
sketch25.addConstraint(Sketcher.Constraint("Horizontal", 8, 3, 17, 3))
sketch25.addConstraint(Sketcher.Constraint("Horizontal", 9, 3, 18, 3))
sketch25.addConstraint(Sketcher.Constraint("Horizontal", 10, 3, 19, 3))
sketch25.addConstraint(Sketcher.Constraint("Horizontal", 11, 3, 20, 3))
sketch25.addConstraint(Sketcher.Constraint("Vertical", 0, 3, 7, 3))
sketch25.addConstraint(Sketcher.Constraint("Vertical", 7, 3, 8, 3))
sketch25.addConstraint(Sketcher.Constraint("Vertical", 8, 3, 9, 3))
sketch25.addConstraint(Sketcher.Constraint("Vertical", 9, 3, 10, 3))
sketch25.addConstraint(Sketcher.Constraint("Vertical", 10, 3, 11, 3))
sketch25.addConstraint(Sketcher.Constraint("Vertical", 11, 3, 12, 3))
sketch25.addConstraint(Sketcher.Constraint("Vertical", 1, 3, 13, 3))
sketch25.addConstraint(Sketcher.Constraint("Vertical", 5, 3, 14, 3))
sketch25.addConstraint(Sketcher.Constraint("Vertical", 6, 3, 15, 3))
sketch25.addConstraint(Sketcher.Constraint("Vertical", 15, 3, 16, 3))
sketch25.addConstraint(Sketcher.Constraint("Vertical", 16, 3, 17, 3))
sketch25.addConstraint(Sketcher.Constraint("Vertical", 17, 3, 18, 3))
sketch25.addConstraint(Sketcher.Constraint("Vertical", 18, 3, 19, 3))
sketch25.addConstraint(Sketcher.Constraint("Vertical", 19, 3, 20, 3))
sketch25.addConstraint(Sketcher.Constraint("Diameter", 0, Q("200 mm")))
sketch25.addConstraint(Sketcher.Constraint("DistanceX", -1, 1, 0, 3, Q("6150 mm")))
sketch25.addConstraint(Sketcher.Constraint("DistanceY", 0, 3, -1, 1, Q("6150 mm")))
sketch25.addConstraint(Sketcher.Constraint("DistanceX", -1, 1, 1, 3, Q("5200 mm")))
sketch25.addConstraint(Sketcher.Constraint("DistanceX", -1, 1, 2, 3, Q("4250 mm")))
sketch25.addConstraint(Sketcher.Constraint("DistanceX", -1, 1, 3, 3, Q("3300 mm")))
sketch25.addConstraint(Sketcher.Constraint("DistanceX", -1, 1, 4, 3, Q("2350 mm")))
sketch25.addConstraint(Sketcher.Constraint("DistanceX", -1, 1, 5, 3, Q("1400 mm")))
sketch25.addConstraint(Sketcher.Constraint("DistanceX", -1, 1, 6, 3, Q("450 mm")))
sketch25.addConstraint(Sketcher.Constraint("DistanceY", 7, 3, -1, 1, Q("5200 mm")))
sketch25.addConstraint(Sketcher.Constraint("DistanceY", 8, 3, -1, 1, Q("4250 mm")))
sketch25.addConstraint(Sketcher.Constraint("DistanceY", 9, 3, -1, 1, Q("3300 mm")))
sketch25.addConstraint(Sketcher.Constraint("DistanceY", 10, 3, -1, 1, Q("2350 mm")))
sketch25.addConstraint(Sketcher.Constraint("DistanceY", 11, 3, -1, 1, Q("1400 mm")))
sketch25.addConstraint(Sketcher.Constraint("DistanceY", 12, 3, -1, 1, Q("450 mm")))
pad25 = body.newObject("PartDesign::Pad", "Pad024")
pad25.Profile = sketch25
pad25.Length = 150

# Sketch on XZ plane
sketch26 = body.newObject("Sketcher::SketchObject", "Sketch025")
sketch26.AttachmentSupport = (doc.getObject("XZ_Plane"), [""])
sketch26.MapMode = "FlatFace"
sketch26.AttachmentOffset = App.Placement(Vector(0, 0, -1950), App.Rotation())
add_polygon(sketch26, [(450, -1220), (450, -1100), (1100, -1100), (1100, -450), (1220, -450), (1220, -1100), (1420, -1100), (1420, -1220), (1220, -1220), (1220, -1420), (1100, -1420), (1100, -1220)])  # lines 0-11
sketch26.addConstraint(Sketcher.Constraint("Vertical", 0))
sketch26.addConstraint(Sketcher.Constraint("Horizontal", 1))
sketch26.addConstraint(Sketcher.Constraint("Vertical", 2))
sketch26.addConstraint(Sketcher.Constraint("Horizontal", 3))
sketch26.addConstraint(Sketcher.Constraint("Vertical", 4))
sketch26.addConstraint(Sketcher.Constraint("Horizontal", 5))
sketch26.addConstraint(Sketcher.Constraint("Vertical", 6))
sketch26.addConstraint(Sketcher.Constraint("Horizontal", 7))
sketch26.addConstraint(Sketcher.Constraint("Vertical", 8))
sketch26.addConstraint(Sketcher.Constraint("Horizontal", 9))
sketch26.addConstraint(Sketcher.Constraint("Vertical", 10))
sketch26.addConstraint(Sketcher.Constraint("Horizontal", 11))
sketch26.addConstraint(Sketcher.Constraint("Horizontal", 1, 2, 4, 2))
sketch26.addConstraint(Sketcher.Constraint("Horizontal", 7, 2, 10, 2))
sketch26.addConstraint(Sketcher.Constraint("Vertical", 4, 2, 7, 2))
sketch26.addConstraint(Sketcher.Constraint("Vertical", 2, 2, 9, 2))
sketch26.addConstraint(Sketcher.Constraint("Equal", 9, 0))
sketch26.addConstraint(Sketcher.Constraint("Equal", 7, 8))
sketch26.addConstraint(Sketcher.Constraint("DistanceX", 1, 1, 1, 2, Q("650 mm")))
sketch26.addConstraint(Sketcher.Constraint("DistanceX", 3, 1, 3, 2, Q("120 mm")))
sketch26.addConstraint(Sketcher.Constraint("DistanceX", 5, 1, 5, 2, Q("200 mm")))
sketch26.addConstraint(Sketcher.Constraint("DistanceX", -1, 1, 0, 2, Q("450 mm")))
sketch26.addConstraint(Sketcher.Constraint("DistanceY", 0, 2, -1, 1, Q("1100 mm")))
sketch26.addConstraint(Sketcher.Constraint("DistanceY", 2, 1, 2, 2, Q("650.112428 mm")))
pad26 = body.newObject("PartDesign::Pad", "Pad025")
pad26.Profile = sketch26
pad26.Length = 150
doc.recompute()

datumplane3 = body.newObject("PartDesign::Plane", "DatumPlane002")
datumplane3.AttachmentSupport = (doc.getObject("XY_Plane"), [""])
datumplane3.MapMode = "FlatFace"
datumplane3.AttachmentOffset = App.Placement(Vector(0, 0, -3300), App.Rotation())
mirrored3 = body.newObject("PartDesign::Mirrored", "Mirrored002")
mirrored3.Originals = [pad26]
mirrored3.MirrorPlane = (datumplane3, [""])
body.Tip = mirrored3
doc.recompute()

datumplane4 = body.newObject("PartDesign::Plane", "DatumPlane003")
datumplane4.AttachmentSupport = (doc.getObject("YZ_Plane"), [""])
datumplane4.MapMode = "FlatFace"
datumplane4.AttachmentOffset = App.Placement(Vector(0, 0, 3300), App.Rotation())
mirrored4 = body.newObject("PartDesign::Mirrored", "Mirrored003")
mirrored4.Originals = [pad26]
mirrored4.MirrorPlane = (datumplane4, [""])
body.Tip = mirrored4

# Sketch on XY plane
sketch27 = body.newObject("Sketcher::SketchObject", "Sketch026")
sketch27.AttachmentSupport = (doc.getObject("XY_Plane"), [""])
sketch27.MapMode = "FlatFace"
sketch27.AttachmentOffset = App.Placement(Vector(0, 0, -1420), App.Rotation())
add_polygon(sketch27, [(5470, 1920), (5470, 1830), (5410, 1830), (5410, 1920)])  # lines 0-3
sketch27.addConstraint(Sketcher.Constraint("Vertical", 0))
sketch27.addConstraint(Sketcher.Constraint("Horizontal", 1))
sketch27.addConstraint(Sketcher.Constraint("Vertical", 2))
sketch27.addConstraint(Sketcher.Constraint("Horizontal", 3))
sketch27.addConstraint(Sketcher.Constraint("DistanceX", 1, 2, 1, 1, Q("60 mm")))
sketch27.addConstraint(Sketcher.Constraint("DistanceY", 0, 2, 0, 1, Q("90 mm")))
sketch27.addConstraint(Sketcher.Constraint("DistanceX", -1, 1, 0, 2, Q("5470 mm")))
sketch27.addConstraint(Sketcher.Constraint("DistanceY", -1, 1, 0, 2, Q("1830 mm")))
pocket1 = body.newObject("PartDesign::Pocket", "Pocket")
pocket1.Profile = sketch27
pocket1.Type = "ThroughAll"

# Sketch on YZ plane
sketch28 = body.newObject("Sketcher::SketchObject", "Sketch027")
sketch28.AttachmentSupport = (doc.getObject("YZ_Plane"), [""])
sketch28.MapMode = "FlatFace"
sketch28.AttachmentOffset = App.Placement(Vector(0, 0, 1420), App.Rotation())
add_polygon(sketch28, [(1920, -5410), (1830, -5410), (1830, -5470), (1920, -5470)])  # lines 0-3
sketch28.addConstraint(Sketcher.Constraint("Horizontal", 0))
sketch28.addConstraint(Sketcher.Constraint("Vertical", 1))
sketch28.addConstraint(Sketcher.Constraint("Horizontal", 2))
sketch28.addConstraint(Sketcher.Constraint("Vertical", 3))
sketch28.addConstraint(Sketcher.Constraint("DistanceX", 0, 2, 0, 1, Q("90 mm")))
sketch28.addConstraint(Sketcher.Constraint("DistanceY", 1, 2, 1, 1, Q("60 mm")))
sketch28.addConstraint(Sketcher.Constraint("DistanceX", -1, 1, 0, 2, Q("1830 mm")))
sketch28.addConstraint(Sketcher.Constraint("DistanceY", 0, 2, -1, 1, Q("5410 mm")))
pocket2 = body.newObject("PartDesign::Pocket", "Pocket001")
pocket2.Profile = sketch28
pocket2.Type = "ThroughAll"
pocket2.Reversed = True

doc.recompute()
